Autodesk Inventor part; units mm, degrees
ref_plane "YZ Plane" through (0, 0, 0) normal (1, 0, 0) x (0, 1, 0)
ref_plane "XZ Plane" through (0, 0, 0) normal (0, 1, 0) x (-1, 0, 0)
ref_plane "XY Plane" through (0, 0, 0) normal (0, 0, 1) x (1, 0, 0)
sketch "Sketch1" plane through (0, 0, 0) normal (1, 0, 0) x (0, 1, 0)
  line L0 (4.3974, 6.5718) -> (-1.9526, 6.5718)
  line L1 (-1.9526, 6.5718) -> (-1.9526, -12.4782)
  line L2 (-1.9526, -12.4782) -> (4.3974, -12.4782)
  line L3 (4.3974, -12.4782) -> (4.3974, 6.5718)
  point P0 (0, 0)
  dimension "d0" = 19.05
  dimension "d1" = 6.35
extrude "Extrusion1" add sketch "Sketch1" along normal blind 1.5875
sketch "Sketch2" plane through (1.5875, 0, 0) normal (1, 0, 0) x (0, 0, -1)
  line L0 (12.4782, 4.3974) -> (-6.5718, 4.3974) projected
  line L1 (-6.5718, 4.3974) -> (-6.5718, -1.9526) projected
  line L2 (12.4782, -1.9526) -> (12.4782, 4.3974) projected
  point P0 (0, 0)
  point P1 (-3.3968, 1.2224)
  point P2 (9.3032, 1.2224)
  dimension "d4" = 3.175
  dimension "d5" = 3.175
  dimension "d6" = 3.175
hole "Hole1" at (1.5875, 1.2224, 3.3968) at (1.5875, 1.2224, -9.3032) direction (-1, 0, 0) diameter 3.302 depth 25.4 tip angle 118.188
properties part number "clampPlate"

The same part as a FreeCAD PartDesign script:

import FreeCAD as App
import Part
import Sketcher

V = App.Vector
Q = App.Units.Quantity

doc = App.newDocument("Part")
body = doc.addObject("PartDesign::Body", "Body")

# Sketch on YZ plane
sketch1 = body.newObject("Sketcher::SketchObject", "Sketch")
sketch1.AttachmentSupport = (doc.getObject("YZ_Plane"), [""])
sketch1.MapMode = "FlatFace"
sketch1.addGeometry(Part.LineSegment(V(4, -12, 0), V(4, 7, 0)), False)
sketch1.addGeometry(Part.LineSegment(V(4, 7, 0), V(-2, 7, 0)), False)
sketch1.addGeometry(Part.LineSegment(V(-2, 7, 0), V(-2, -12, 0)), False)
sketch1.addGeometry(Part.LineSegment(V(-2, -12, 0), V(4, -12, 0)), False)
sketch1.addConstraint(Sketcher.Constraint("Coincident", 0, 2, 1, 1))
sketch1.addConstraint(Sketcher.Constraint("Coincident", 1, 2, 2, 1))
sketch1.addConstraint(Sketcher.Constraint("Coincident", 2, 2, 3, 1))
sketch1.addConstraint(Sketcher.Constraint("Coincident", 3, 2, 0, 1))
sketch1.addConstraint(Sketcher.Constraint("Vertical", 0))
sketch1.addConstraint(Sketcher.Constraint("Horizontal", 1))
sketch1.addConstraint(Sketcher.Constraint("Vertical", 2))
sketch1.addConstraint(Sketcher.Constraint("Horizontal", 3))
sketch1.addConstraint(Sketcher.Constraint("DistanceX", 1, 2, 1, 1, Q("0.25 in")))
sketch1.addConstraint(Sketcher.Constraint("DistanceY", 0, 1, 0, 2, Q("0.75 in")))
sketch1.addConstraint(Sketcher.Constraint("DistanceX", -1, 1, 0, 2, 4.3974))
sketch1.addConstraint(Sketcher.Constraint("DistanceY", -1, 1, 0, 2, 6.5718))
pad1 = body.newObject("PartDesign::Pad", "Pad")
pad1.Profile = sketch1
pad1.Length = Q("0.0625 in")

# Sketch on YZ plane
sketch2 = body.newObject("Sketcher::SketchObject", "Sketch001")
sketch2.AttachmentSupport = (doc.getObject("YZ_Plane"), [""])
sketch2.MapMode = "FlatFace"
sketch2.AttachmentOffset = App.Placement(V(0, 0, 0.0625 * 25.4), App.Rotation())
sketch2.addGeometry(Part.Circle(V(1.2, 3.4, 0), V(0, 0, 1), 1.7), False)
sketch2.addGeometry(Part.Circle(V(1.2, -9.3, 0), V(0, 0, 1), 1.7), False)
sketch2.addConstraint(Sketcher.Constraint("Equal", 0, 1))
sketch2.addConstraint(Sketcher.Constraint("Vertical", 0, 3, 1, 3))
sketch2.addConstraint(Sketcher.Constraint("Diameter", 0, Q("0.13 in")))
sketch2.addConstraint(Sketcher.Constraint("DistanceY", 1, 3, 0, 3, Q("0.5 in")))
sketch2.addConstraint(Sketcher.Constraint("DistanceX", -1, 1, 0, 3, 1.2224))
sketch2.addConstraint(Sketcher.Constraint("DistanceY", -1, 1, 0, 3, 3.3968))
doc.recompute()
hole = body.newObject("PartDesign::Hole", "Hole")
hole.Profile = sketch2
hole.ThreadType = "None"
hole.Diameter = Q("0.13 in")
hole.DepthType = "Dimension"
hole.Depth = Q("1 in")
hole.DrillPoint = "Angled"
hole.DrillPointAngle = 118.188

doc.recompute()
